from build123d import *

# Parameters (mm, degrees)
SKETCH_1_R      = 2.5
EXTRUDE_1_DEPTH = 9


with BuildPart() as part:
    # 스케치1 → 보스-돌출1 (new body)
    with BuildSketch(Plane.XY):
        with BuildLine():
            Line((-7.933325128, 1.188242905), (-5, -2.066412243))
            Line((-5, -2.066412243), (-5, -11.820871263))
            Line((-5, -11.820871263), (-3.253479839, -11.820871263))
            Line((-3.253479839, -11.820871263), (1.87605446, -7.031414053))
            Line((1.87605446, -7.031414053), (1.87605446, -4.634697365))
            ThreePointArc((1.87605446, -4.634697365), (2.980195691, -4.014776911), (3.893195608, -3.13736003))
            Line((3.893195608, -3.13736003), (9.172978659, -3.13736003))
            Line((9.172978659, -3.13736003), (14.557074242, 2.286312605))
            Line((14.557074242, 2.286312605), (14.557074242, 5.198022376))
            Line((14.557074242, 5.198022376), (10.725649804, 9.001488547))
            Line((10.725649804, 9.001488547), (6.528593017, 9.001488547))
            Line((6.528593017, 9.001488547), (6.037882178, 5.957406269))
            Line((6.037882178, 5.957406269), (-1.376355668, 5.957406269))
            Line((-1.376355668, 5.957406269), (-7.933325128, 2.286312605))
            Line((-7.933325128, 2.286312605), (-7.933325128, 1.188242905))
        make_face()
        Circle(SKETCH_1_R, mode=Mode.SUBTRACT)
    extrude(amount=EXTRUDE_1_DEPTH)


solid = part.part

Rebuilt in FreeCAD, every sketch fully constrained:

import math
import FreeCAD as App
import Part
import Sketcher
from FreeCAD import Vector
Q = App.Units.Quantity

doc = App.newDocument("Part")
body = doc.addObject("PartDesign::Body", "Body")

sketch1 = body.newObject("Sketcher::SketchObject", "Sketch")
sketch1.AttachmentSupport = (doc.getObject("XY_Plane"), [""])
sketch1.MapMode = "FlatFace"
sketch1.addGeometry(Part.LineSegment(Vector(-7.9, 1.2, 0), Vector(-5, -2.1, 0)), False)
sketch1.addGeometry(Part.LineSegment(Vector(-5, -2.1, 0), Vector(-5, -11.8, 0)), False)
sketch1.addGeometry(Part.LineSegment(Vector(-5, -11.8, 0), Vector(-3.3, -11.8, 0)), False)
sketch1.addGeometry(Part.LineSegment(Vector(-3.3, -11.8, 0), Vector(1.9, -7, 0)), False)
sketch1.addGeometry(Part.LineSegment(Vector(1.9, -7, 0), Vector(1.9, -4.6, 0)), False)
sketch1.addGeometry(Part.ArcOfCircle(Part.Circle(Vector(0, 0, 0), Vector(0, 0, 1), 5), math.radians(-68), math.radians(-39)), False)
sketch1.addGeometry(Part.LineSegment(Vector(3.9, -3.1, 0), Vector(9.2, -3.1, 0)), False)
sketch1.addGeometry(Part.LineSegment(Vector(9.2, -3.1, 0), Vector(14.6, 2.3, 0)), False)
sketch1.addGeometry(Part.LineSegment(Vector(14.6, 2.3, 0), Vector(14.6, 5.2, 0)), False)
sketch1.addGeometry(Part.LineSegment(Vector(14.6, 5.2, 0), Vector(10.7, 9, 0)), False)
sketch1.addGeometry(Part.LineSegment(Vector(10.7, 9, 0), Vector(6.5, 9, 0)), False)
sketch1.addGeometry(Part.LineSegment(Vector(6.5, 9, 0), Vector(6, 6, 0)), False)
sketch1.addGeometry(Part.LineSegment(Vector(6, 6, 0), Vector(-1.4, 6, 0)), False)
sketch1.addGeometry(Part.LineSegment(Vector(-1.4, 6, 0), Vector(-7.9, 2.3, 0)), False)
sketch1.addGeometry(Part.LineSegment(Vector(-7.9, 2.3, 0), Vector(-7.9, 1.2, 0)), False)
sketch1.addGeometry(Part.Circle(Vector(0, 0, 0), Vector(0, 0, 1), 2.5), False)
sketch1.addConstraint(Sketcher.Constraint("Coincident", 0, 2, 1, 1))
sketch1.addConstraint(Sketcher.Constraint("Coincident", 1, 2, 2, 1))
sketch1.addConstraint(Sketcher.Constraint("Coincident", 2, 2, 3, 1))
sketch1.addConstraint(Sketcher.Constraint("Coincident", 3, 2, 4, 1))
sketch1.addConstraint(Sketcher.Constraint("Coincident", 4, 2, 5, 1))
sketch1.addConstraint(Sketcher.Constraint("Coincident", 5, 2, 6, 1))
sketch1.addConstraint(Sketcher.Constraint("Coincident", 6, 2, 7, 1))
sketch1.addConstraint(Sketcher.Constraint("Coincident", 7, 2, 8, 1))
sketch1.addConstraint(Sketcher.Constraint("Coincident", 8, 2, 9, 1))
sketch1.addConstraint(Sketcher.Constraint("Coincident", 9, 2, 10, 1))
sketch1.addConstraint(Sketcher.Constraint("Coincident", 10, 2, 11, 1))
sketch1.addConstraint(Sketcher.Constraint("Coincident", 11, 2, 12, 1))
sketch1.addConstraint(Sketcher.Constraint("Coincident", 12, 2, 13, 1))
sketch1.addConstraint(Sketcher.Constraint("Coincident", 13, 2, 14, 1))
sketch1.addConstraint(Sketcher.Constraint("Coincident", 14, 2, 0, 1))
sketch1.addConstraint(Sketcher.Constraint("Vertical", 1))
sketch1.addConstraint(Sketcher.Constraint("Horizontal", 2))
sketch1.addConstraint(Sketcher.Constraint("Vertical", 4))
sketch1.addConstraint(Sketcher.Constraint("Horizontal", 6))
sketch1.addConstraint(Sketcher.Constraint("Vertical", 8))
sketch1.addConstraint(Sketcher.Constraint("Horizontal", 10))
sketch1.addConstraint(Sketcher.Constraint("Horizontal", 12))
sketch1.addConstraint(Sketcher.Constraint("Vertical", 14))
sketch1.addConstraint(Sketcher.Constraint("Coincident", 5, 3, -1, 1))
sketch1.addConstraint(Sketcher.Constraint("Coincident", 15, 3, -1, 1))
sketch1.addConstraint(Sketcher.Constraint("Perpendicular", 7, 9))
sketch1.addConstraint(Sketcher.Constraint("Horizontal", 7, 2, 13, 2))
sketch1.addConstraint(Sketcher.Constraint("Diameter", 15, Q("5 mm")))
sketch1.addConstraint(Sketcher.Constraint("Radius", 5, Q("5 mm")))
sketch1.addConstraint(Sketcher.Constraint("DistanceX", 0, 2, -1, 1, Q("5 mm")))
sketch1.addConstraint(Sketcher.Constraint("DistanceY", 3, 2, 0, 2, Q("4.965002 mm")))
sketch1.addConstraint(Sketcher.Constraint("DistanceX", 2, 1, 2, 2, Q("1.74652 mm")))
sketch1.addConstraint(Sketcher.Constraint("DistanceY", 1, 2, 1, 1, Q("9.754459 mm")))
sketch1.addConstraint(Sketcher.Constraint("DistanceY", 8, 1, 8, 2, Q("2.91171 mm")))
sketch1.addConstraint(Sketcher.Constraint("DistanceY", 14, 2, 14, 1, Q("1.09807 mm")))
sketch1.addConstraint(Sketcher.Constraint("Distance", 0, Q("4.381458 mm")))
sketch1.addConstraint(Sketcher.Constraint("Distance", 9, Q("5.398719 mm")))
sketch1.addConstraint(Sketcher.Constraint("Distance", 11, Q("3.08338 mm")))
sketch1.addConstraint(Sketcher.Constraint("DistanceX", 6, 1, 6, 2, Q("5.279783 mm")))
sketch1.addConstraint(Sketcher.Constraint("DistanceX", 10, 2, 10, 1, Q("4.197057 mm")))
sketch1.addConstraint(Sketcher.Constraint("DistanceX", 12, 2, 12, 1, Q("7.414238 mm")))
sketch1.addConstraint(Sketcher.Constraint("DistanceY", 4, 1, 4, 2, Q("2.396717 mm")))
sketch1.addConstraint(Sketcher.Constraint("DistanceY", 1, 2, -1, 1, Q("11.820871 mm")))
sketch1.addConstraint(Sketcher.Constraint("DistanceY", 5, 2, -1, 1, Q("3.13736 mm")))
sketch1.addConstraint(Sketcher.Constraint("DistanceX", -1, 1, 9, 2, Q("10.72565 mm")))
sketch1.addConstraint(Sketcher.Constraint("DistanceY", -1, 1, 9, 2, Q("9.001489 mm")))
sketch1.addConstraint(Sketcher.Constraint("DistanceX", 11, 2, 10, 2, Q("0.490711 mm")))
pad1 = body.newObject("PartDesign::Pad", "Pad")
pad1.Profile = sketch1
pad1.Length = 9

doc.recompute()
